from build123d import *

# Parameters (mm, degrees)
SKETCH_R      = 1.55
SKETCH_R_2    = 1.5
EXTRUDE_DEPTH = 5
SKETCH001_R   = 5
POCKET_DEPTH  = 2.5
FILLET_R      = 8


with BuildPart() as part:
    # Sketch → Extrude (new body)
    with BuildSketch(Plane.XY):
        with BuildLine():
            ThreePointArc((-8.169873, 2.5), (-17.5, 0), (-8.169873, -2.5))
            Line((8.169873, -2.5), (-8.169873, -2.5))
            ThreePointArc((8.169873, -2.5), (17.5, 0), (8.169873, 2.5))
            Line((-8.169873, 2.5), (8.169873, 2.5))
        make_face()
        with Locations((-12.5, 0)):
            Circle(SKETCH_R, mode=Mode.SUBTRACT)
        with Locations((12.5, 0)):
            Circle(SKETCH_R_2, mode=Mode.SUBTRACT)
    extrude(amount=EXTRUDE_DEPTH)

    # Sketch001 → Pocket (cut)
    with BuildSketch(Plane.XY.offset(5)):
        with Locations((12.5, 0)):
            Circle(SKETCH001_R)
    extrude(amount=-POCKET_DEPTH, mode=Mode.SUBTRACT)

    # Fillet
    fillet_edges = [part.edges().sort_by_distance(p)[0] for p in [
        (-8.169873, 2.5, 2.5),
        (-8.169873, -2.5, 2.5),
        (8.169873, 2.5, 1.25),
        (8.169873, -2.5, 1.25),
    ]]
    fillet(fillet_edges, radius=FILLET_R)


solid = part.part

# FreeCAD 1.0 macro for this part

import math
import FreeCAD as App
import Part
import Sketcher

V = App.Vector


def edges_at(feature, points):
    """Names of the edges that pass closest to the given points."""
    edges = feature.Shape.Edges
    near = lambda p: min(range(len(edges)), key=lambda i: edges[i].distToShape(Part.Vertex(*p))[0])
    return sorted({f"Edge{near(p) + 1}" for p in points})

doc = App.newDocument("Part")
body = doc.addObject("PartDesign::Body", "Body")

# Sketch on XY plane
sketch1 = body.newObject("Sketcher::SketchObject", "Sketch")
sketch1.AttachmentSupport = (doc.getObject("XY_Plane"), [""])
sketch1.MapMode = "FlatFace"
sketch1.addGeometry([
    Part.ArcOfCircle(Part.Circle(V(-12.5, 0, 0), V(0, 0, 1), 5), math.radians(30), math.radians(330)),  # 0
    Part.LineSegment(V(-8.169873, -2.5, 0), V(8.169873, -2.5, 0)),  # 1
    Part.ArcOfCircle(Part.Circle(V(12.5, 0, 0), V(0, 0, 1), 5), math.radians(-150), math.radians(150)),  # 2
    Part.LineSegment(V(8.169873, 2.5, 0), V(-8.169873, 2.5, 0)),  # 3
    Part.Circle(V(-12.5, 0, 0), V(0, 0, 1), 1.55),  # 4
    Part.Circle(V(12.5, 0, 0), V(0, 0, 1), 1.5),  # 5
], False)
sketch1.addConstraint([
    Sketcher.Constraint("Coincident", 0, 2, 1, 1),
    Sketcher.Constraint("Coincident", 1, 2, 2, 1),
    Sketcher.Constraint("Coincident", 2, 2, 3, 1),
    Sketcher.Constraint("Coincident", 3, 2, 0, 1),
    Sketcher.Constraint("Horizontal", 1),
    Sketcher.Constraint("Horizontal", 3),
    Sketcher.Constraint("Coincident", 4, 3, 0, 3),
    Sketcher.Constraint("Coincident", 5, 3, 2, 3),
    Sketcher.Constraint("Equal", 0, 2),
    Sketcher.Constraint("Symmetric", 0, 3, 2, 3, -1, 1),
    Sketcher.Constraint("Symmetric", 1, 2, 2, 2, -1),
    Sketcher.Constraint("Diameter", 5, 3.0),
    Sketcher.Constraint("Radius", 0, 5.0),
    Sketcher.Constraint("Diameter", 4, 3.1),
    Sketcher.Constraint("DistanceX", 0, 3, 2, 3, 25.0),
    Sketcher.Constraint("DistanceY", 1, 2, 2, 2, 5.0),
])
pad1 = body.newObject("PartDesign::Pad", "Pad")
pad1.Profile = sketch1
pad1.Length = 5

# Sketch on XY plane
sketch2 = body.newObject("Sketcher::SketchObject", "Sketch001")
sketch2.AttachmentSupport = (doc.getObject("XY_Plane"), [""])
sketch2.MapMode = "FlatFace"
sketch2.AttachmentOffset = App.Placement(V(0, 0, 5), App.Rotation())
sketch2.addGeometry(Part.Circle(V(12.5, 0, 0), V(0, 0, 1), 5), False)
sketch2.addConstraint([
    Sketcher.Constraint("PointOnObject", 0, 3, -1),
    Sketcher.Constraint("Diameter", 0, 10.0),
    Sketcher.Constraint("DistanceX", -1, 1, 0, 3, 12.5),
])
pocket1 = body.newObject("PartDesign::Pocket", "Pocket")
pocket1.Profile = sketch2
pocket1.Length = 2.5
doc.recompute()

fillet = body.newObject("PartDesign::Fillet", "Fillet")
fillet.Base = (pocket1, edges_at(pocket1, [
    (-8.17, 2.5, 2.5),
    (-8.17, -2.5, 2.5),
    (8.17, 2.5, 1.25),
    (8.17, -2.5, 1.25),
]))
fillet.Radius = 8

doc.recompute()
